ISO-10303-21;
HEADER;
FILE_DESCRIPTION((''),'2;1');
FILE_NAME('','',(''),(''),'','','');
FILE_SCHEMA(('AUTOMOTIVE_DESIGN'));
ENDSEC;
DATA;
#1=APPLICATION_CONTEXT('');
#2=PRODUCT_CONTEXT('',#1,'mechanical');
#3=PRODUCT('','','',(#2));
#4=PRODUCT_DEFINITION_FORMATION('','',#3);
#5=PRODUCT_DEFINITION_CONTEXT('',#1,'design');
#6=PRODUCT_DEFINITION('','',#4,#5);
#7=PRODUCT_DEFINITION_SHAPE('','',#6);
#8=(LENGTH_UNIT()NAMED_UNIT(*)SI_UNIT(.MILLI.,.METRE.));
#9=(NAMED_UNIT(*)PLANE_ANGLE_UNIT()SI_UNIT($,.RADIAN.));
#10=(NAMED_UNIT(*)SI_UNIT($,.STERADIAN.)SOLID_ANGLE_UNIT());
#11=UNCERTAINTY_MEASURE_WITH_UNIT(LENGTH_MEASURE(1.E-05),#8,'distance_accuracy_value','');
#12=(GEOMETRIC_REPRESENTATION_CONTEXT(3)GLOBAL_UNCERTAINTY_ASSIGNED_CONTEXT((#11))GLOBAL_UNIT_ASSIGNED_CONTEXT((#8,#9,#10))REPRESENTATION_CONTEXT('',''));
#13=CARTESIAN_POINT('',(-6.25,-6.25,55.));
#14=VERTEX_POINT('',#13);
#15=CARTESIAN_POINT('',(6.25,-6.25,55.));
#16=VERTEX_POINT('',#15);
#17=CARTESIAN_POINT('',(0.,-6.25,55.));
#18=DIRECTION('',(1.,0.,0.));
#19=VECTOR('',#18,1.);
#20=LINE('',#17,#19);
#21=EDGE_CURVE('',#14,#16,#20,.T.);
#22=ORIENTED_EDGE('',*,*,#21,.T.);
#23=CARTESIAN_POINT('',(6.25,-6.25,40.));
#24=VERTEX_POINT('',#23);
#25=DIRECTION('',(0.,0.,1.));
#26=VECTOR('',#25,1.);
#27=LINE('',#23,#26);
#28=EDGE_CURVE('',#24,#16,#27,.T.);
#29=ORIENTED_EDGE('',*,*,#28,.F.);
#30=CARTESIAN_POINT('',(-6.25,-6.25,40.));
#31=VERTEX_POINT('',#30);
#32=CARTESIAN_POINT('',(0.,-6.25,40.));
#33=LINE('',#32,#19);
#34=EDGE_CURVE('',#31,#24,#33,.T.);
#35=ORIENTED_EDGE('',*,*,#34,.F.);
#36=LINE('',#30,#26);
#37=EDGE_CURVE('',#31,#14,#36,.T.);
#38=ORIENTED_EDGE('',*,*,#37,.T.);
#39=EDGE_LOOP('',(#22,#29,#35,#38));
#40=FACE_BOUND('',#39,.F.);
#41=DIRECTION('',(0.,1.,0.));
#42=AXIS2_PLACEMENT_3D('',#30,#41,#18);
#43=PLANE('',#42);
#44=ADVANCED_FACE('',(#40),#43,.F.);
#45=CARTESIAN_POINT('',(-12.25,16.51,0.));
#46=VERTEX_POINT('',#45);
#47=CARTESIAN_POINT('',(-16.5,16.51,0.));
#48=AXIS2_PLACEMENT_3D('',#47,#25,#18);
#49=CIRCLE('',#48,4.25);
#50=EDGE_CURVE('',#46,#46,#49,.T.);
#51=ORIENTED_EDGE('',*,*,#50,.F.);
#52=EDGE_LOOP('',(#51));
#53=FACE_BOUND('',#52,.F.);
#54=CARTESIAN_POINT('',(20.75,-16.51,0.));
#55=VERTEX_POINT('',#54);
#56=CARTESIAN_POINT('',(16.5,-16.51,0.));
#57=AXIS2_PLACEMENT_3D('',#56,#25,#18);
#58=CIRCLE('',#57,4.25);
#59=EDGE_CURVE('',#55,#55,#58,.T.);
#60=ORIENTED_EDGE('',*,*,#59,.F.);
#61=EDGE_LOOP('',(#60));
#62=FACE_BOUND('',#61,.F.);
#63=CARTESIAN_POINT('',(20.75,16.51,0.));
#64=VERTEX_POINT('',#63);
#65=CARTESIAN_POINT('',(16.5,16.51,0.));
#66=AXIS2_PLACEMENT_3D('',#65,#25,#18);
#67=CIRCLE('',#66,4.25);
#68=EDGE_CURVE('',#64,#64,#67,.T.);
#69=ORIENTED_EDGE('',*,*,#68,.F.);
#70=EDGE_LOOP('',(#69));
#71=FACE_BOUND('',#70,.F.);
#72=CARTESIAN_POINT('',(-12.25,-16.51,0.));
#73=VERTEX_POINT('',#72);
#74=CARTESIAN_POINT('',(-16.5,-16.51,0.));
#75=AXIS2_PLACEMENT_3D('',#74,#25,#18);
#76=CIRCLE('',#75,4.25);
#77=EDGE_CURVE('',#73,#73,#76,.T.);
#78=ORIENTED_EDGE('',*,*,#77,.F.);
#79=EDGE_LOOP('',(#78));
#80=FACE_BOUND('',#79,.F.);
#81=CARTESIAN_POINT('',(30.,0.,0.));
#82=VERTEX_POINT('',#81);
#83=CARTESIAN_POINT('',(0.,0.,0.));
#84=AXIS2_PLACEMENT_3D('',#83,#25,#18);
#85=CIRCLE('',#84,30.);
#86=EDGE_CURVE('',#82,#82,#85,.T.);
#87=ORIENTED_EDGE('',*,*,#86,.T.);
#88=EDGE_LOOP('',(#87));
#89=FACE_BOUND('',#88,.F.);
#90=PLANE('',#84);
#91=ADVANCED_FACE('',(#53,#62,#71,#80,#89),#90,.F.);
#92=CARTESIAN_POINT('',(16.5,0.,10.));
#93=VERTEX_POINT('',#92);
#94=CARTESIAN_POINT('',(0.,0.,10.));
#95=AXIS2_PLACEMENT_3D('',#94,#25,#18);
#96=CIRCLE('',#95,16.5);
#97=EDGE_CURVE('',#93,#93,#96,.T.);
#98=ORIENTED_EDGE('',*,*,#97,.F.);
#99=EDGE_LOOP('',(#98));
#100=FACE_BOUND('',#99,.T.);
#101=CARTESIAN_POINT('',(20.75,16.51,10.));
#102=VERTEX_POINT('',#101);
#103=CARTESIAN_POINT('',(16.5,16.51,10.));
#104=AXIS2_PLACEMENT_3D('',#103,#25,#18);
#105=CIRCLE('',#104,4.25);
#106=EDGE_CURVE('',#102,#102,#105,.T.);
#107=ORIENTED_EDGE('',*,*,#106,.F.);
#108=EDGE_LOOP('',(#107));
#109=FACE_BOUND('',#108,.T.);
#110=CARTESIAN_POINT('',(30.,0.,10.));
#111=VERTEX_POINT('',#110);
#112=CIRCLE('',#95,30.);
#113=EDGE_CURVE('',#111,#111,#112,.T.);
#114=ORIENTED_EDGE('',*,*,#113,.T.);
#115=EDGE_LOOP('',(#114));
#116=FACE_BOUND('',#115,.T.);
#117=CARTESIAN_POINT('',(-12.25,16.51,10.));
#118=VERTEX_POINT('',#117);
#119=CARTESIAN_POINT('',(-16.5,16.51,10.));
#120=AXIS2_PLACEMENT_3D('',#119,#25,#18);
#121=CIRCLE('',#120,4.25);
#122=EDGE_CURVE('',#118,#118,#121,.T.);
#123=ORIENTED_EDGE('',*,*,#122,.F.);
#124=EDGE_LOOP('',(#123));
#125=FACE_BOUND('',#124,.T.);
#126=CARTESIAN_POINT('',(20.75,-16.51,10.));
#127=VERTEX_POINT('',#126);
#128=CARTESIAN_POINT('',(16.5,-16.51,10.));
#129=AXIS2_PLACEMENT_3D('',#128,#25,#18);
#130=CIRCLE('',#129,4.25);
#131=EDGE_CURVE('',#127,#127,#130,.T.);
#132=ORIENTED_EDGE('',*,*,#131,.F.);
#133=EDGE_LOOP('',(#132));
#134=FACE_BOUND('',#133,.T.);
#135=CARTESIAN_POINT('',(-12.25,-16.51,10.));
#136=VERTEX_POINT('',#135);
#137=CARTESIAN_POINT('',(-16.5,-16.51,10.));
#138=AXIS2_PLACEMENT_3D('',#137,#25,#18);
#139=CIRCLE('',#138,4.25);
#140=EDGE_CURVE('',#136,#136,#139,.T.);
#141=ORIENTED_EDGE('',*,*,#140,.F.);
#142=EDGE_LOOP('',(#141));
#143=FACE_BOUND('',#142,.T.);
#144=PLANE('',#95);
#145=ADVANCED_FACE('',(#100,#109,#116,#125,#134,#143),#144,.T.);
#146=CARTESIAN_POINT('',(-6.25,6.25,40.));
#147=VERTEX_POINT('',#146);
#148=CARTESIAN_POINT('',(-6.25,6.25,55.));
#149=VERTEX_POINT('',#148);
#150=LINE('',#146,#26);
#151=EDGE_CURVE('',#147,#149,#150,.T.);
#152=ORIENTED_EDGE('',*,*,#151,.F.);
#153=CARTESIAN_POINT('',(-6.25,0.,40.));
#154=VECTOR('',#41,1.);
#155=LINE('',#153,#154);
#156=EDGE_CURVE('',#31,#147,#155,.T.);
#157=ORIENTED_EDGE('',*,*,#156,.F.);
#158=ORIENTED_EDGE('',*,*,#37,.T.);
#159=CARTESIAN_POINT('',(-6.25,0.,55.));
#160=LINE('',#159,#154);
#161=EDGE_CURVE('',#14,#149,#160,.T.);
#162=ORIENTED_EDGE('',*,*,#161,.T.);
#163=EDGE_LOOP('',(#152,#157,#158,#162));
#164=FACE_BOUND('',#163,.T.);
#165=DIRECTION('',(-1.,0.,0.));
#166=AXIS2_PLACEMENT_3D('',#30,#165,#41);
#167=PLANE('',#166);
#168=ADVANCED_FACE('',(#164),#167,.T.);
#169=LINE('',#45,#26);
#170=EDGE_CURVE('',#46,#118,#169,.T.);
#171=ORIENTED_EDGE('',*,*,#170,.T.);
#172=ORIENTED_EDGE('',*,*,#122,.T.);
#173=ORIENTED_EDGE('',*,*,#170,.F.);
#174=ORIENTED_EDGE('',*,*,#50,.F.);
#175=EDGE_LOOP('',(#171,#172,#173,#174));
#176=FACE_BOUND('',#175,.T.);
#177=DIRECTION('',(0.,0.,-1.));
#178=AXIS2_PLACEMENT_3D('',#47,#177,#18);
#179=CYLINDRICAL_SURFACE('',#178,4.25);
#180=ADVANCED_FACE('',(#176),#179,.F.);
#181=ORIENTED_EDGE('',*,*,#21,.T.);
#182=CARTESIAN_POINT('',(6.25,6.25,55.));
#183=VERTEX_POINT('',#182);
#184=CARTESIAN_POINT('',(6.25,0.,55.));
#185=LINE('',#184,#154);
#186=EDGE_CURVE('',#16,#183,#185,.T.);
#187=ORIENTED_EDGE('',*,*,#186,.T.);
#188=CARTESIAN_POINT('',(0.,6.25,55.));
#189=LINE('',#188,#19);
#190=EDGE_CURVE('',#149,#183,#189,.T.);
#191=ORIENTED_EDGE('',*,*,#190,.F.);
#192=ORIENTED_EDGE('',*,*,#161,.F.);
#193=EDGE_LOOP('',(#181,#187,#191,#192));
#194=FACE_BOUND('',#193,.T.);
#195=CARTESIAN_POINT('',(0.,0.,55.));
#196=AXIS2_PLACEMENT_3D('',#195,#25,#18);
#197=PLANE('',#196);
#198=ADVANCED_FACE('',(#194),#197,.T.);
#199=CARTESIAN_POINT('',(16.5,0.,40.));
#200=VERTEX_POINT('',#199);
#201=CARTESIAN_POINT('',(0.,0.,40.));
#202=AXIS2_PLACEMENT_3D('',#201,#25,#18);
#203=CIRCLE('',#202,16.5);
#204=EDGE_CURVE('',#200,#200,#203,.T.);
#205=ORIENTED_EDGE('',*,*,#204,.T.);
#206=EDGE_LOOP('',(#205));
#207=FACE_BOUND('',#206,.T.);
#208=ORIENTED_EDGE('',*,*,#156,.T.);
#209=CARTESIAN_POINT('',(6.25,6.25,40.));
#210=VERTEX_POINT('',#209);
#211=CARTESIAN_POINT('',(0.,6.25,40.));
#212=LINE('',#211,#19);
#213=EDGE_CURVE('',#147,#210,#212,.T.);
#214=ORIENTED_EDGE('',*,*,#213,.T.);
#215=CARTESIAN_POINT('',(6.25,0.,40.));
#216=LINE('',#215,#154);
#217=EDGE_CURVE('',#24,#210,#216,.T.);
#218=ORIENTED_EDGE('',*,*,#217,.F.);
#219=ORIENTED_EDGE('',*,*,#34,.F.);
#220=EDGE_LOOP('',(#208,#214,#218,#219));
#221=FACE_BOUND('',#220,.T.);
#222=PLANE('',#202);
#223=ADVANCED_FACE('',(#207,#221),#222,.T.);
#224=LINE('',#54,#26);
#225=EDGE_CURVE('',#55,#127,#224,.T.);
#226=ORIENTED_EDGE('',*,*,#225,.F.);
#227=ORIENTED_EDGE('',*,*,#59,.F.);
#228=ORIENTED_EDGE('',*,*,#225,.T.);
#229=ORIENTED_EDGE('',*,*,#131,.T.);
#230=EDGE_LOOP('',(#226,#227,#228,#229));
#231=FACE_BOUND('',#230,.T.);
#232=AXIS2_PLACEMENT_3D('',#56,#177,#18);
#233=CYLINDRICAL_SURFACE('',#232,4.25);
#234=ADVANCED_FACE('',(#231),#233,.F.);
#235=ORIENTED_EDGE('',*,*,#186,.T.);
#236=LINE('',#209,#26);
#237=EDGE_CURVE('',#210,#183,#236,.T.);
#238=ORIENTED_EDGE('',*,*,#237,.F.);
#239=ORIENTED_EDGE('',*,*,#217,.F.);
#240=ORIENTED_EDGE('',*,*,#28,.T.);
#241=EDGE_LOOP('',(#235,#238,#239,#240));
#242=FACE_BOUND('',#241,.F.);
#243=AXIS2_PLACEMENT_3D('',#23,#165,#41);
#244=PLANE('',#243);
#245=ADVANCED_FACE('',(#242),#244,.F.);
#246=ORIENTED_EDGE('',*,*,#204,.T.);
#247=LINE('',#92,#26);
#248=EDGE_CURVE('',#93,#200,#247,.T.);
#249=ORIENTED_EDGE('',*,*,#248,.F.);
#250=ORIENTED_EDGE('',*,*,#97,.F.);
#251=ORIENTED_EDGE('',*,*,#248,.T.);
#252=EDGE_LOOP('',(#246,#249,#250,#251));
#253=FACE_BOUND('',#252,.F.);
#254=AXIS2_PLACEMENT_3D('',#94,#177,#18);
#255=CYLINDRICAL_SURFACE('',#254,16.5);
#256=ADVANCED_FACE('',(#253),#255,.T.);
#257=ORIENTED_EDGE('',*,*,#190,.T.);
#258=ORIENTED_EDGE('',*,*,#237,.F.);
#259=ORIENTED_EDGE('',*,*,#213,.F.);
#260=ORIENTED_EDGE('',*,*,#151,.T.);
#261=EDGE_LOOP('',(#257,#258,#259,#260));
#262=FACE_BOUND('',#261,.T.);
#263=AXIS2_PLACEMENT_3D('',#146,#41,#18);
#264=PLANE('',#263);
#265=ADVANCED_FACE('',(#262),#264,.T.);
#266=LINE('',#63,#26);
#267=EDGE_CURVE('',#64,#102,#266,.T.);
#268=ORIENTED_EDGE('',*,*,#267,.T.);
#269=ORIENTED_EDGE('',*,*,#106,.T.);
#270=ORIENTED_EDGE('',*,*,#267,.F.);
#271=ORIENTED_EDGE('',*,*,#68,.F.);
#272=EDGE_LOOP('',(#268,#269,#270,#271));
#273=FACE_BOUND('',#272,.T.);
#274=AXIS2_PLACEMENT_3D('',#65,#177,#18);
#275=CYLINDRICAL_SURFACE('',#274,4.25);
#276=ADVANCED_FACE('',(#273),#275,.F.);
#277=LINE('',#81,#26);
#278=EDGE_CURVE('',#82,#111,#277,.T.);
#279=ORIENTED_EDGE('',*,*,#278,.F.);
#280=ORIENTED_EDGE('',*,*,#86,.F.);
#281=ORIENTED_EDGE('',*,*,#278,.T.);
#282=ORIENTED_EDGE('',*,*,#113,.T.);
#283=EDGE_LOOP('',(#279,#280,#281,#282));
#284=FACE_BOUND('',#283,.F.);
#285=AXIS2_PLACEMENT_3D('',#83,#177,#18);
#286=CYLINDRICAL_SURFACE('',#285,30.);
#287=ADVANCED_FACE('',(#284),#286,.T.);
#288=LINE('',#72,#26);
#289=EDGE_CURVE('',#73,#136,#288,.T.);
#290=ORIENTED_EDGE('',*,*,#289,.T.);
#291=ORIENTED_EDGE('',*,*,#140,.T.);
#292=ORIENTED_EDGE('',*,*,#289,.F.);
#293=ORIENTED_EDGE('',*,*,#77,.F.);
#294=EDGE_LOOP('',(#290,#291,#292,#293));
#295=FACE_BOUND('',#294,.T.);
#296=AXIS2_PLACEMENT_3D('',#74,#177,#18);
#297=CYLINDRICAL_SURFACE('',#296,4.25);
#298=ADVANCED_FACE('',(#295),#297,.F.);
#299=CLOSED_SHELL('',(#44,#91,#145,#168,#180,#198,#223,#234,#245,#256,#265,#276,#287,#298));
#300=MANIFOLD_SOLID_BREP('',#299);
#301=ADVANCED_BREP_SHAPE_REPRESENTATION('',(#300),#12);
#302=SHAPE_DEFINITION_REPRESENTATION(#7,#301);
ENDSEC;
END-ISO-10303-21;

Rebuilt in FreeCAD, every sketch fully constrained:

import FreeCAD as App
import Part
import Sketcher
from FreeCAD import Vector
Q = App.Units.Quantity

doc = App.newDocument("Part")
body = doc.addObject("PartDesign::Body", "Body")

# Sketch on XY plane
sketch1 = body.newObject("Sketcher::SketchObject", "Sketch")
sketch1.AttachmentSupport = (doc.getObject("XY_Plane"), [""])
sketch1.MapMode = "FlatFace"
sketch1.addGeometry([
    Part.Circle(Vector(0, 0, 0), Vector(0, 0, 1), 30),  # 0
    Part.Circle(Vector(-16.5, -16.51, 0), Vector(0, 0, 1), 4.25),  # 1
    Part.Circle(Vector(16.5, -16.51, 0), Vector(0, 0, 1), 4.25),  # 2
    Part.Circle(Vector(-16.5, 16.51, 0), Vector(0, 0, 1), 4.25),  # 3
    Part.Circle(Vector(16.5, 16.51, 0), Vector(0, 0, 1), 4.25),  # 4
], False)
sketch1.addConstraint([
    Sketcher.Constraint("Coincident", 0, 3, -1, 1),
    Sketcher.Constraint("Equal", 1, 2),
    Sketcher.Constraint("Equal", 2, 3),
    Sketcher.Constraint("Equal", 3, 4),
    Sketcher.Constraint("Symmetric", 2, 3, 3, 3, -1, 1),
    Sketcher.Constraint("Symmetric", 1, 3, 4, 3, -1, 1),
    Sketcher.Constraint("Symmetric", 1, 3, 2, 3, -2),
    Sketcher.Constraint("Diameter", 0, Q("60 mm")),
    Sketcher.Constraint("Diameter", 1, Q("8.5 mm")),
    Sketcher.Constraint("DistanceX", 1, 3, 2, 3, Q("33 mm")),
    Sketcher.Constraint("DistanceY", 1, 3, -1, 1, Q("16.51 mm")),
])
pad1 = body.newObject("PartDesign::Pad", "Pad")
pad1.Profile = sketch1
pad1.Length = 10

# Sketch on XY plane
sketch2 = body.newObject("Sketcher::SketchObject", "Sketch001")
sketch2.AttachmentSupport = (doc.getObject("XY_Plane"), [""])
sketch2.MapMode = "FlatFace"
sketch2.AttachmentOffset = App.Placement(Vector(0, 0, 10), App.Rotation())
sketch2.addGeometry(Part.Circle(Vector(0, 0, 0), Vector(0, 0, 1), 16.5), False)
sketch2.addConstraint([
    Sketcher.Constraint("Coincident", 0, 3, -1, 1),
    Sketcher.Constraint("Diameter", 0, Q("33 mm")),
])
pad2 = body.newObject("PartDesign::Pad", "Pad001")
pad2.Profile = sketch2
pad2.Length = 30

# Sketch on XY plane
sketch3 = body.newObject("Sketcher::SketchObject", "Sketch002")
sketch3.AttachmentSupport = (doc.getObject("XY_Plane"), [""])
sketch3.MapMode = "FlatFace"
sketch3.AttachmentOffset = App.Placement(Vector(0, 0, 40), App.Rotation())
sketch3.addGeometry([
    Part.LineSegment(Vector(-6.25, 6.25, 0), Vector(-6.25, -6.25, 0)),
    Part.LineSegment(Vector(-6.25, -6.25, 0), Vector(6.25, -6.25, 0)),
    Part.LineSegment(Vector(6.25, -6.25, 0), Vector(6.25, 6.25, 0)),
    Part.LineSegment(Vector(6.25, 6.25, 0), Vector(-6.25, 6.25, 0)),
], False)
sketch3.addConstraint([
    Sketcher.Constraint("Coincident", 0, 2, 1, 1),
    Sketcher.Constraint("Coincident", 1, 2, 2, 1),
    Sketcher.Constraint("Coincident", 2, 2, 3, 1),
    Sketcher.Constraint("Coincident", 3, 2, 0, 1),
    Sketcher.Constraint("Vertical", 0),
    Sketcher.Constraint("Horizontal", 1),
    Sketcher.Constraint("Vertical", 2),
    Sketcher.Constraint("Horizontal", 3),
    Sketcher.Constraint("Symmetric", 0, 2, 2, 2, -1, 1),
    Sketcher.Constraint("Equal", 3, 0),
    Sketcher.Constraint("DistanceX", 1, 1, 1, 2, Q("12.5 mm")),
])
pad3 = body.newObject("PartDesign::Pad", "Pad002")
pad3.Profile = sketch3
pad3.Length = 15

doc.recompute()
